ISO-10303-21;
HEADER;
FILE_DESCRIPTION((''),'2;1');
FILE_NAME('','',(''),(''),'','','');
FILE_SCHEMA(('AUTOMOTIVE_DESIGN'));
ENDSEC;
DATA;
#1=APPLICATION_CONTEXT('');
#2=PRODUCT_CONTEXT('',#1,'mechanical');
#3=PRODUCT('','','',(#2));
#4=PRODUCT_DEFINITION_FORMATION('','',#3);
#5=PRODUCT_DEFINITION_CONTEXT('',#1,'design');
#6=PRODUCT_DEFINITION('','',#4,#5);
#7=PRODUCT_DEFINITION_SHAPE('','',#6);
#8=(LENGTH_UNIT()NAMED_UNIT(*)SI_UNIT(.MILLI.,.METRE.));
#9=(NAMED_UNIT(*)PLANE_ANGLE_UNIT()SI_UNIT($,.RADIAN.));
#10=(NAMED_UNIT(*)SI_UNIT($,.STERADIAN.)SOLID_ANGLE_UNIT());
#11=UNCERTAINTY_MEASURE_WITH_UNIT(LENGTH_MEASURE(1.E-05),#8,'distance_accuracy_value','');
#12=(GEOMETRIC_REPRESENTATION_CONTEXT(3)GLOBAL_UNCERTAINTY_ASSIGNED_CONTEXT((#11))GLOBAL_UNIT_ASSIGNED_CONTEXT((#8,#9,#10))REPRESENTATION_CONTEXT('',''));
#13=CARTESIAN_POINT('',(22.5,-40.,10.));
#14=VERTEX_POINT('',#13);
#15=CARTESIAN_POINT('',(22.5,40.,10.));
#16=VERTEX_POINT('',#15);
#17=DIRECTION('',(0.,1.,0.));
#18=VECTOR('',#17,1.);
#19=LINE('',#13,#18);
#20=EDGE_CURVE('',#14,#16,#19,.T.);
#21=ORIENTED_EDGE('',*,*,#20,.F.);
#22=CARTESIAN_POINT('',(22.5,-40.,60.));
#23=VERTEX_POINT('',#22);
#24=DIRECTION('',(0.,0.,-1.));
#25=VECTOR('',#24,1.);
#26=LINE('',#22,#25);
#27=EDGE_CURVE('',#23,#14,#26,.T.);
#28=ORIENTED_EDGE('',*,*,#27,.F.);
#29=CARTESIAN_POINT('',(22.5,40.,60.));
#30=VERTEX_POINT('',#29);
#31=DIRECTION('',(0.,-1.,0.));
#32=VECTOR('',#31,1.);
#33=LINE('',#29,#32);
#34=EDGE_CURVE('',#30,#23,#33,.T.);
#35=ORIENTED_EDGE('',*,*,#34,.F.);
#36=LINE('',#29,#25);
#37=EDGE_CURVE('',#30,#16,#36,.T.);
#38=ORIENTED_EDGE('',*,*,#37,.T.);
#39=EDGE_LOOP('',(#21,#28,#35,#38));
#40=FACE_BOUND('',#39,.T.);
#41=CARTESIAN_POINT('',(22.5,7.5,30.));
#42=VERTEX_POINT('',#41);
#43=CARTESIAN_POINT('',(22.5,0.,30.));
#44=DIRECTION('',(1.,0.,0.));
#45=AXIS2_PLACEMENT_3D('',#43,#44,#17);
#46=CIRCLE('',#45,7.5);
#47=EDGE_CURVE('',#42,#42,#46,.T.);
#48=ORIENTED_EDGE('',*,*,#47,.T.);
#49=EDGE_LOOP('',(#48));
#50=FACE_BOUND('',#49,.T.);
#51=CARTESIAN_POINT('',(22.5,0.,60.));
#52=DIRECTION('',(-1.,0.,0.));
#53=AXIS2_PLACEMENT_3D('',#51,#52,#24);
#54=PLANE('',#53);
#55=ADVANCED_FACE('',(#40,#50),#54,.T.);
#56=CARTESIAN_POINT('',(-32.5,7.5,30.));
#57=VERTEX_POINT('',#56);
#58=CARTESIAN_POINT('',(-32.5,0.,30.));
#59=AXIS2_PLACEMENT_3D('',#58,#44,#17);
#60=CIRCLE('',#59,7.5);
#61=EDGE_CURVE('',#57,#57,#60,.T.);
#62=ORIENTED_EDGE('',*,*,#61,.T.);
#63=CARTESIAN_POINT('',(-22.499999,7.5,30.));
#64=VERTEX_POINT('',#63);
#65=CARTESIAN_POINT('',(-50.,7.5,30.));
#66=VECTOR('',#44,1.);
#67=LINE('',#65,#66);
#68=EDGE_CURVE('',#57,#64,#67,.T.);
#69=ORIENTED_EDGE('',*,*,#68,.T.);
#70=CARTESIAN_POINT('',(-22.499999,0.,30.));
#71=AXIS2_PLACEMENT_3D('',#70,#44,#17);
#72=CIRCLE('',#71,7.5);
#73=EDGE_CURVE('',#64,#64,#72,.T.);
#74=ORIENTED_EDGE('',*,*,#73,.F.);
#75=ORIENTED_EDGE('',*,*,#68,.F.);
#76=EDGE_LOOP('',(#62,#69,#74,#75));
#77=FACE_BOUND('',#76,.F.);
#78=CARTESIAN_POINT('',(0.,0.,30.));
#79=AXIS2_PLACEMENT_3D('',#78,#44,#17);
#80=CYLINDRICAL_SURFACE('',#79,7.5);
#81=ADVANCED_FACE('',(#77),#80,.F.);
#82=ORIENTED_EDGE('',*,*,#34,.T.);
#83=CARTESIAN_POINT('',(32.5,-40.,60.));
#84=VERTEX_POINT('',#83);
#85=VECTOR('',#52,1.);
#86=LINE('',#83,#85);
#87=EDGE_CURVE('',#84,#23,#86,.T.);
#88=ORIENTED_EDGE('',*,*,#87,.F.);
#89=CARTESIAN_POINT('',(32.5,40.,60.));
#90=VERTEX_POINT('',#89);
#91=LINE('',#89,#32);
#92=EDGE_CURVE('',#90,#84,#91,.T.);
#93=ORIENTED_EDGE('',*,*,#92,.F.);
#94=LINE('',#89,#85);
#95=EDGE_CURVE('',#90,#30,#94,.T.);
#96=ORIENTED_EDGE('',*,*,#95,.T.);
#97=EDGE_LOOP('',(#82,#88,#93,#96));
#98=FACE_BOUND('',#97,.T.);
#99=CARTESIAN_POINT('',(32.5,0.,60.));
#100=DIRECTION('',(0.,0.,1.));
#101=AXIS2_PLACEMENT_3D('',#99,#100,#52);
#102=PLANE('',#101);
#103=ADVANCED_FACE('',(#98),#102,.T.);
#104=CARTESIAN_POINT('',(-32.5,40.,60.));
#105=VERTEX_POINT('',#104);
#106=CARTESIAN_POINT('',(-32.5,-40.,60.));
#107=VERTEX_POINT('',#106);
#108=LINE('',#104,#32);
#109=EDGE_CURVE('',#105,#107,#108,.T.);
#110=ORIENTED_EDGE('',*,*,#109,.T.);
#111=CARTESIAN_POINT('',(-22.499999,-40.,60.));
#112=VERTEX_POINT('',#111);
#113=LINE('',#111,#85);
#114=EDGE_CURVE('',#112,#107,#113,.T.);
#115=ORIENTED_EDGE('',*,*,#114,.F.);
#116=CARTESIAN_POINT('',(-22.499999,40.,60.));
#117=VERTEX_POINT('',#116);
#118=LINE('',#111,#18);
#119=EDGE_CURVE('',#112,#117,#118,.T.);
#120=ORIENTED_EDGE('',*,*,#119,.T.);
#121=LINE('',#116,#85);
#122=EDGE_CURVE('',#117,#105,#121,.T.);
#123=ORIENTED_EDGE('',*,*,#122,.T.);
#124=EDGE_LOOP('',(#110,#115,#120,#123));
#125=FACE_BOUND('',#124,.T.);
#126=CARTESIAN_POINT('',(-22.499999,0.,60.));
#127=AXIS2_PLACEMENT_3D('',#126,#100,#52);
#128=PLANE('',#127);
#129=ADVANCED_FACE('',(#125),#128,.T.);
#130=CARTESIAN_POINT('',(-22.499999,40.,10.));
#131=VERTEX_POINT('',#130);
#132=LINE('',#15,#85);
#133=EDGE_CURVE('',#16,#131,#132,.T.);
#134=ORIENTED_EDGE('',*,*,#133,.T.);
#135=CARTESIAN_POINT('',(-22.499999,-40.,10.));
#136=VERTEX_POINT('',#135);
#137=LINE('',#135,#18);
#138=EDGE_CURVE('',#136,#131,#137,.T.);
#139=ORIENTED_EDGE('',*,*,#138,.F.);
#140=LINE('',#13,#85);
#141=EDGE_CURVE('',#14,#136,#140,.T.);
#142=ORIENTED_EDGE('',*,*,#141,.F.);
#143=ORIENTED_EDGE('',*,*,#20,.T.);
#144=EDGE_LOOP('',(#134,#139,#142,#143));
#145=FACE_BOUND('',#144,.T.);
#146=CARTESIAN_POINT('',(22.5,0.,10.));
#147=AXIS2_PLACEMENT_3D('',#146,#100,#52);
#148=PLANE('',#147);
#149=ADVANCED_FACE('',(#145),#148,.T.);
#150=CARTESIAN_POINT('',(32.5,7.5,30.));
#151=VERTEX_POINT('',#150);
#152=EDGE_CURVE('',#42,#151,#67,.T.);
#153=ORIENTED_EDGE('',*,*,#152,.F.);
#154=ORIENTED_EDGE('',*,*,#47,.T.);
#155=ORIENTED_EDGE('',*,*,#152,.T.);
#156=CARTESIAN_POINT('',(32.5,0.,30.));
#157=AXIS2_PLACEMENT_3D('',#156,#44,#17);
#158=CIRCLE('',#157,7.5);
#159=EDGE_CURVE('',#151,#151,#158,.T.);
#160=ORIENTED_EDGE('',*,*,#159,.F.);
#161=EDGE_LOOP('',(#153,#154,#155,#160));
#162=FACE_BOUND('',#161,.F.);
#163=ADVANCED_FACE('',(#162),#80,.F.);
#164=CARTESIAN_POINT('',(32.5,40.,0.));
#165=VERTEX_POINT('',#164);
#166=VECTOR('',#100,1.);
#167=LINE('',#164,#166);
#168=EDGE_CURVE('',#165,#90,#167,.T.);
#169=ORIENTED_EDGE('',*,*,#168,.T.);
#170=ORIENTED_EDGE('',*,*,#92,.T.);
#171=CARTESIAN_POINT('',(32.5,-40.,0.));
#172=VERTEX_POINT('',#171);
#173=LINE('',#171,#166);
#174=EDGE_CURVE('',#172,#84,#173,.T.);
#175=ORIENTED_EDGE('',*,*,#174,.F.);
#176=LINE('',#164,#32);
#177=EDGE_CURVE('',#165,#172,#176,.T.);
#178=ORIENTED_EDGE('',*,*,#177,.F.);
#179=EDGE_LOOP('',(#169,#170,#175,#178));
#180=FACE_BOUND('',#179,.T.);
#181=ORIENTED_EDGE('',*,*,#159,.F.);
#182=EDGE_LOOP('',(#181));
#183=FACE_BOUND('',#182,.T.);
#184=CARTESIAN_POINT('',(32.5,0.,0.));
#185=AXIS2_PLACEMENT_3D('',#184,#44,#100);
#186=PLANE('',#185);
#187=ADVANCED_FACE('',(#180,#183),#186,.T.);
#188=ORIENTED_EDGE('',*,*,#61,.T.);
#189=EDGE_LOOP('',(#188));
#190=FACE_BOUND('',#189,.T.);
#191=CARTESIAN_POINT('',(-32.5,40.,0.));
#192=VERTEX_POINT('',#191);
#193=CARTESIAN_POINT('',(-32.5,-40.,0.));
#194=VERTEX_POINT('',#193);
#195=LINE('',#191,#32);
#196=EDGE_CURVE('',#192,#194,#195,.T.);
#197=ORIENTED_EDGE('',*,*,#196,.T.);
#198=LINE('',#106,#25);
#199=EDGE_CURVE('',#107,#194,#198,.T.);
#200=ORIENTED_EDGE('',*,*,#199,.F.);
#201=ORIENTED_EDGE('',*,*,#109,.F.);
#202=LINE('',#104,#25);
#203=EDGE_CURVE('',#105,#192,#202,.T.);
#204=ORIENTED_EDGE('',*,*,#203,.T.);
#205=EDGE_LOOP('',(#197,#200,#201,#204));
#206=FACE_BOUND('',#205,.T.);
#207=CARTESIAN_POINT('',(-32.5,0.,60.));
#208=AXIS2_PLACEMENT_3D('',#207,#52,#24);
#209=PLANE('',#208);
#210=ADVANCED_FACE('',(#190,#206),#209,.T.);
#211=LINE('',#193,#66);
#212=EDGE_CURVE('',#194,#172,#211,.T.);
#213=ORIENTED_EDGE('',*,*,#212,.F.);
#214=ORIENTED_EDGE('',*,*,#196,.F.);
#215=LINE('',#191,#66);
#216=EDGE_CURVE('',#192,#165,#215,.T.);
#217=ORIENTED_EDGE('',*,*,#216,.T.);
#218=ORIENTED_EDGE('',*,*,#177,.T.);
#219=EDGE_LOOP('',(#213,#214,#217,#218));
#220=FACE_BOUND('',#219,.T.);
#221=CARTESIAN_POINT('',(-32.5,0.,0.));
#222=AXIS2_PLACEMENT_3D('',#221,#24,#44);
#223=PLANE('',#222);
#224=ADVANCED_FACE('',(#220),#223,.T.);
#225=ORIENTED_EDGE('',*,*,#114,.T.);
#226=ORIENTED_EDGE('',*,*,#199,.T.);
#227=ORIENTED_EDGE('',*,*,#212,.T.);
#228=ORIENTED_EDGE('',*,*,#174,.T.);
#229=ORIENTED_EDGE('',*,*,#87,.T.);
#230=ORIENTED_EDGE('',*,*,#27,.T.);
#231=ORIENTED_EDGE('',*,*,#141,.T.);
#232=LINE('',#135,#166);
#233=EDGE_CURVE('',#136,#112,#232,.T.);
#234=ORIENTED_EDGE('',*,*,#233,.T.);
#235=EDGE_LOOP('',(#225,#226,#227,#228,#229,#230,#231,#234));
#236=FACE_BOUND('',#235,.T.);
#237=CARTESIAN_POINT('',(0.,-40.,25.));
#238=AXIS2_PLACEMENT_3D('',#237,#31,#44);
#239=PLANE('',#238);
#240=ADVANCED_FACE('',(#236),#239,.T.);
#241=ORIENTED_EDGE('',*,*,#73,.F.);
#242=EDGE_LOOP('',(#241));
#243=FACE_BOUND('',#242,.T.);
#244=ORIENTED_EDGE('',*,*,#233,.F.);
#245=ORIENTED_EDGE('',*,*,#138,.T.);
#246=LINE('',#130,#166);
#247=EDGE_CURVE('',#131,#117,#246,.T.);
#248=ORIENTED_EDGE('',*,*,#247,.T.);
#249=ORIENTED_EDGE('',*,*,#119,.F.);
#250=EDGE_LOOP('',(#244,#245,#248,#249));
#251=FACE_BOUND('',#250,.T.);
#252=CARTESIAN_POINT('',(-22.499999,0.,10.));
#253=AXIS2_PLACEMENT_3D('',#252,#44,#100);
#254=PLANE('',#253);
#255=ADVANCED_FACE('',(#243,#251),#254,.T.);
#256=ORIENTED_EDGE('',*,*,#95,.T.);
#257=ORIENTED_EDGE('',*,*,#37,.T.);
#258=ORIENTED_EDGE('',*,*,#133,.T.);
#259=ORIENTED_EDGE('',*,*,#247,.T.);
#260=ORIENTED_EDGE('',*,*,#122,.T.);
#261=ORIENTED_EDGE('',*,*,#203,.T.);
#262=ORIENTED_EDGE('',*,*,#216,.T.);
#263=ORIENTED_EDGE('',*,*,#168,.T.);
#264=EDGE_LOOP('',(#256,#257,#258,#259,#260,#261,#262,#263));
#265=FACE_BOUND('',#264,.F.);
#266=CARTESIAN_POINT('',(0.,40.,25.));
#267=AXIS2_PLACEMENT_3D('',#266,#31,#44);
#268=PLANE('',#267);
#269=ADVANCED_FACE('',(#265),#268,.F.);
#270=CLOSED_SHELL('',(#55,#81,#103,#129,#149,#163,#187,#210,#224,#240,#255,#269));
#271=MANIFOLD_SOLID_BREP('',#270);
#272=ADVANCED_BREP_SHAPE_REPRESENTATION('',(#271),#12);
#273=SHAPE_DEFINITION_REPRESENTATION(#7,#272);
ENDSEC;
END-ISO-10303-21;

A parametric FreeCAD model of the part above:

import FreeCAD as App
import Part
import Sketcher
Q = App.Units.Quantity

doc = App.newDocument("Part")
body = doc.addObject("PartDesign::Body", "Body")

# Sketch on XZ plane
sketch1 = body.newObject("Sketcher::SketchObject", "Sketch")
sketch1.AttachmentSupport = (doc.getObject("XZ_Plane"), [""])
sketch1.MapMode = "FlatFace"
sketch1.addGeometry([
    Part.LineSegment(App.Vector(-22, 60, 0), App.Vector(-32, 60, 0)),  # 0
    Part.LineSegment(App.Vector(-32, 60, 0), App.Vector(-32, 0, 0)),  # 1
    Part.LineSegment(App.Vector(-32, 0, 0), App.Vector(32, 0, 0)),  # 2
    Part.LineSegment(App.Vector(32, 0, 0), App.Vector(32, 60, 0)),  # 3
    Part.LineSegment(App.Vector(32, 60, 0), App.Vector(22, 60, 0)),  # 4
    Part.LineSegment(App.Vector(22, 60, 0), App.Vector(22, 10, 0)),  # 5
    Part.LineSegment(App.Vector(22, 10, 0), App.Vector(-22, 10, 0)),  # 6
    Part.LineSegment(App.Vector(-22, 10, 0), App.Vector(-22, 60, 0)),  # 7
], False)
sketch1.addConstraint([
    Sketcher.Constraint("Coincident", 0, 2, 1, 1),
    Sketcher.Constraint("Coincident", 1, 2, 2, 1),
    Sketcher.Constraint("Coincident", 2, 2, 3, 1),
    Sketcher.Constraint("Coincident", 3, 2, 4, 1),
    Sketcher.Constraint("Coincident", 4, 2, 5, 1),
    Sketcher.Constraint("Coincident", 5, 2, 6, 1),
    Sketcher.Constraint("Coincident", 6, 2, 7, 1),
    Sketcher.Constraint("Coincident", 7, 2, 0, 1),
    Sketcher.Constraint("Horizontal", 0),
    Sketcher.Constraint("Vertical", 1),
    Sketcher.Constraint("Horizontal", 2),
    Sketcher.Constraint("Vertical", 3),
    Sketcher.Constraint("Horizontal", 4),
    Sketcher.Constraint("Vertical", 5),
    Sketcher.Constraint("Horizontal", 6),
    Sketcher.Constraint("Vertical", 7),
    Sketcher.Constraint("Symmetric", 1, 2, 2, 2, -1, 1),
    Sketcher.Constraint("Symmetric", 4, 2, 7, 2, -2),
    Sketcher.Constraint("DistanceX", 0, 2, 0, 1, Q("10.000001 mm")),
    Sketcher.Constraint("DistanceX", 2, 1, 2, 2, Q("65 mm")),
    Sketcher.Constraint("DistanceY", 1, 2, 1, 1, Q("60 mm")),
    Sketcher.Constraint("DistanceY", 5, 2, 5, 1, Q("50 mm")),
])
pad1 = body.newObject("PartDesign::Pad", "Pad")
pad1.Profile = sketch1
pad1.Length = 80
pad1.Midplane = True

# Sketch on YZ plane
sketch2 = body.newObject("Sketcher::SketchObject", "Sketch001")
sketch2.AttachmentSupport = (doc.getObject("YZ_Plane"), [""])
sketch2.MapMode = "FlatFace"
sketch2.addGeometry(Part.Circle(App.Vector(0, 30, 0), App.Vector(0, 0, 1), 8), False)
sketch2.addConstraint([
    Sketcher.Constraint("PointOnObject", 0, 3, -2),
    Sketcher.Constraint("Diameter", 0, Q("15 mm")),
    Sketcher.Constraint("DistanceY", -1, 1, 0, 3, Q("30 mm")),
])
pocket1 = body.newObject("PartDesign::Pocket", "Pocket")
pocket1.Profile = sketch2
pocket1.Length = 100
pocket1.Midplane = True

doc.recompute()
